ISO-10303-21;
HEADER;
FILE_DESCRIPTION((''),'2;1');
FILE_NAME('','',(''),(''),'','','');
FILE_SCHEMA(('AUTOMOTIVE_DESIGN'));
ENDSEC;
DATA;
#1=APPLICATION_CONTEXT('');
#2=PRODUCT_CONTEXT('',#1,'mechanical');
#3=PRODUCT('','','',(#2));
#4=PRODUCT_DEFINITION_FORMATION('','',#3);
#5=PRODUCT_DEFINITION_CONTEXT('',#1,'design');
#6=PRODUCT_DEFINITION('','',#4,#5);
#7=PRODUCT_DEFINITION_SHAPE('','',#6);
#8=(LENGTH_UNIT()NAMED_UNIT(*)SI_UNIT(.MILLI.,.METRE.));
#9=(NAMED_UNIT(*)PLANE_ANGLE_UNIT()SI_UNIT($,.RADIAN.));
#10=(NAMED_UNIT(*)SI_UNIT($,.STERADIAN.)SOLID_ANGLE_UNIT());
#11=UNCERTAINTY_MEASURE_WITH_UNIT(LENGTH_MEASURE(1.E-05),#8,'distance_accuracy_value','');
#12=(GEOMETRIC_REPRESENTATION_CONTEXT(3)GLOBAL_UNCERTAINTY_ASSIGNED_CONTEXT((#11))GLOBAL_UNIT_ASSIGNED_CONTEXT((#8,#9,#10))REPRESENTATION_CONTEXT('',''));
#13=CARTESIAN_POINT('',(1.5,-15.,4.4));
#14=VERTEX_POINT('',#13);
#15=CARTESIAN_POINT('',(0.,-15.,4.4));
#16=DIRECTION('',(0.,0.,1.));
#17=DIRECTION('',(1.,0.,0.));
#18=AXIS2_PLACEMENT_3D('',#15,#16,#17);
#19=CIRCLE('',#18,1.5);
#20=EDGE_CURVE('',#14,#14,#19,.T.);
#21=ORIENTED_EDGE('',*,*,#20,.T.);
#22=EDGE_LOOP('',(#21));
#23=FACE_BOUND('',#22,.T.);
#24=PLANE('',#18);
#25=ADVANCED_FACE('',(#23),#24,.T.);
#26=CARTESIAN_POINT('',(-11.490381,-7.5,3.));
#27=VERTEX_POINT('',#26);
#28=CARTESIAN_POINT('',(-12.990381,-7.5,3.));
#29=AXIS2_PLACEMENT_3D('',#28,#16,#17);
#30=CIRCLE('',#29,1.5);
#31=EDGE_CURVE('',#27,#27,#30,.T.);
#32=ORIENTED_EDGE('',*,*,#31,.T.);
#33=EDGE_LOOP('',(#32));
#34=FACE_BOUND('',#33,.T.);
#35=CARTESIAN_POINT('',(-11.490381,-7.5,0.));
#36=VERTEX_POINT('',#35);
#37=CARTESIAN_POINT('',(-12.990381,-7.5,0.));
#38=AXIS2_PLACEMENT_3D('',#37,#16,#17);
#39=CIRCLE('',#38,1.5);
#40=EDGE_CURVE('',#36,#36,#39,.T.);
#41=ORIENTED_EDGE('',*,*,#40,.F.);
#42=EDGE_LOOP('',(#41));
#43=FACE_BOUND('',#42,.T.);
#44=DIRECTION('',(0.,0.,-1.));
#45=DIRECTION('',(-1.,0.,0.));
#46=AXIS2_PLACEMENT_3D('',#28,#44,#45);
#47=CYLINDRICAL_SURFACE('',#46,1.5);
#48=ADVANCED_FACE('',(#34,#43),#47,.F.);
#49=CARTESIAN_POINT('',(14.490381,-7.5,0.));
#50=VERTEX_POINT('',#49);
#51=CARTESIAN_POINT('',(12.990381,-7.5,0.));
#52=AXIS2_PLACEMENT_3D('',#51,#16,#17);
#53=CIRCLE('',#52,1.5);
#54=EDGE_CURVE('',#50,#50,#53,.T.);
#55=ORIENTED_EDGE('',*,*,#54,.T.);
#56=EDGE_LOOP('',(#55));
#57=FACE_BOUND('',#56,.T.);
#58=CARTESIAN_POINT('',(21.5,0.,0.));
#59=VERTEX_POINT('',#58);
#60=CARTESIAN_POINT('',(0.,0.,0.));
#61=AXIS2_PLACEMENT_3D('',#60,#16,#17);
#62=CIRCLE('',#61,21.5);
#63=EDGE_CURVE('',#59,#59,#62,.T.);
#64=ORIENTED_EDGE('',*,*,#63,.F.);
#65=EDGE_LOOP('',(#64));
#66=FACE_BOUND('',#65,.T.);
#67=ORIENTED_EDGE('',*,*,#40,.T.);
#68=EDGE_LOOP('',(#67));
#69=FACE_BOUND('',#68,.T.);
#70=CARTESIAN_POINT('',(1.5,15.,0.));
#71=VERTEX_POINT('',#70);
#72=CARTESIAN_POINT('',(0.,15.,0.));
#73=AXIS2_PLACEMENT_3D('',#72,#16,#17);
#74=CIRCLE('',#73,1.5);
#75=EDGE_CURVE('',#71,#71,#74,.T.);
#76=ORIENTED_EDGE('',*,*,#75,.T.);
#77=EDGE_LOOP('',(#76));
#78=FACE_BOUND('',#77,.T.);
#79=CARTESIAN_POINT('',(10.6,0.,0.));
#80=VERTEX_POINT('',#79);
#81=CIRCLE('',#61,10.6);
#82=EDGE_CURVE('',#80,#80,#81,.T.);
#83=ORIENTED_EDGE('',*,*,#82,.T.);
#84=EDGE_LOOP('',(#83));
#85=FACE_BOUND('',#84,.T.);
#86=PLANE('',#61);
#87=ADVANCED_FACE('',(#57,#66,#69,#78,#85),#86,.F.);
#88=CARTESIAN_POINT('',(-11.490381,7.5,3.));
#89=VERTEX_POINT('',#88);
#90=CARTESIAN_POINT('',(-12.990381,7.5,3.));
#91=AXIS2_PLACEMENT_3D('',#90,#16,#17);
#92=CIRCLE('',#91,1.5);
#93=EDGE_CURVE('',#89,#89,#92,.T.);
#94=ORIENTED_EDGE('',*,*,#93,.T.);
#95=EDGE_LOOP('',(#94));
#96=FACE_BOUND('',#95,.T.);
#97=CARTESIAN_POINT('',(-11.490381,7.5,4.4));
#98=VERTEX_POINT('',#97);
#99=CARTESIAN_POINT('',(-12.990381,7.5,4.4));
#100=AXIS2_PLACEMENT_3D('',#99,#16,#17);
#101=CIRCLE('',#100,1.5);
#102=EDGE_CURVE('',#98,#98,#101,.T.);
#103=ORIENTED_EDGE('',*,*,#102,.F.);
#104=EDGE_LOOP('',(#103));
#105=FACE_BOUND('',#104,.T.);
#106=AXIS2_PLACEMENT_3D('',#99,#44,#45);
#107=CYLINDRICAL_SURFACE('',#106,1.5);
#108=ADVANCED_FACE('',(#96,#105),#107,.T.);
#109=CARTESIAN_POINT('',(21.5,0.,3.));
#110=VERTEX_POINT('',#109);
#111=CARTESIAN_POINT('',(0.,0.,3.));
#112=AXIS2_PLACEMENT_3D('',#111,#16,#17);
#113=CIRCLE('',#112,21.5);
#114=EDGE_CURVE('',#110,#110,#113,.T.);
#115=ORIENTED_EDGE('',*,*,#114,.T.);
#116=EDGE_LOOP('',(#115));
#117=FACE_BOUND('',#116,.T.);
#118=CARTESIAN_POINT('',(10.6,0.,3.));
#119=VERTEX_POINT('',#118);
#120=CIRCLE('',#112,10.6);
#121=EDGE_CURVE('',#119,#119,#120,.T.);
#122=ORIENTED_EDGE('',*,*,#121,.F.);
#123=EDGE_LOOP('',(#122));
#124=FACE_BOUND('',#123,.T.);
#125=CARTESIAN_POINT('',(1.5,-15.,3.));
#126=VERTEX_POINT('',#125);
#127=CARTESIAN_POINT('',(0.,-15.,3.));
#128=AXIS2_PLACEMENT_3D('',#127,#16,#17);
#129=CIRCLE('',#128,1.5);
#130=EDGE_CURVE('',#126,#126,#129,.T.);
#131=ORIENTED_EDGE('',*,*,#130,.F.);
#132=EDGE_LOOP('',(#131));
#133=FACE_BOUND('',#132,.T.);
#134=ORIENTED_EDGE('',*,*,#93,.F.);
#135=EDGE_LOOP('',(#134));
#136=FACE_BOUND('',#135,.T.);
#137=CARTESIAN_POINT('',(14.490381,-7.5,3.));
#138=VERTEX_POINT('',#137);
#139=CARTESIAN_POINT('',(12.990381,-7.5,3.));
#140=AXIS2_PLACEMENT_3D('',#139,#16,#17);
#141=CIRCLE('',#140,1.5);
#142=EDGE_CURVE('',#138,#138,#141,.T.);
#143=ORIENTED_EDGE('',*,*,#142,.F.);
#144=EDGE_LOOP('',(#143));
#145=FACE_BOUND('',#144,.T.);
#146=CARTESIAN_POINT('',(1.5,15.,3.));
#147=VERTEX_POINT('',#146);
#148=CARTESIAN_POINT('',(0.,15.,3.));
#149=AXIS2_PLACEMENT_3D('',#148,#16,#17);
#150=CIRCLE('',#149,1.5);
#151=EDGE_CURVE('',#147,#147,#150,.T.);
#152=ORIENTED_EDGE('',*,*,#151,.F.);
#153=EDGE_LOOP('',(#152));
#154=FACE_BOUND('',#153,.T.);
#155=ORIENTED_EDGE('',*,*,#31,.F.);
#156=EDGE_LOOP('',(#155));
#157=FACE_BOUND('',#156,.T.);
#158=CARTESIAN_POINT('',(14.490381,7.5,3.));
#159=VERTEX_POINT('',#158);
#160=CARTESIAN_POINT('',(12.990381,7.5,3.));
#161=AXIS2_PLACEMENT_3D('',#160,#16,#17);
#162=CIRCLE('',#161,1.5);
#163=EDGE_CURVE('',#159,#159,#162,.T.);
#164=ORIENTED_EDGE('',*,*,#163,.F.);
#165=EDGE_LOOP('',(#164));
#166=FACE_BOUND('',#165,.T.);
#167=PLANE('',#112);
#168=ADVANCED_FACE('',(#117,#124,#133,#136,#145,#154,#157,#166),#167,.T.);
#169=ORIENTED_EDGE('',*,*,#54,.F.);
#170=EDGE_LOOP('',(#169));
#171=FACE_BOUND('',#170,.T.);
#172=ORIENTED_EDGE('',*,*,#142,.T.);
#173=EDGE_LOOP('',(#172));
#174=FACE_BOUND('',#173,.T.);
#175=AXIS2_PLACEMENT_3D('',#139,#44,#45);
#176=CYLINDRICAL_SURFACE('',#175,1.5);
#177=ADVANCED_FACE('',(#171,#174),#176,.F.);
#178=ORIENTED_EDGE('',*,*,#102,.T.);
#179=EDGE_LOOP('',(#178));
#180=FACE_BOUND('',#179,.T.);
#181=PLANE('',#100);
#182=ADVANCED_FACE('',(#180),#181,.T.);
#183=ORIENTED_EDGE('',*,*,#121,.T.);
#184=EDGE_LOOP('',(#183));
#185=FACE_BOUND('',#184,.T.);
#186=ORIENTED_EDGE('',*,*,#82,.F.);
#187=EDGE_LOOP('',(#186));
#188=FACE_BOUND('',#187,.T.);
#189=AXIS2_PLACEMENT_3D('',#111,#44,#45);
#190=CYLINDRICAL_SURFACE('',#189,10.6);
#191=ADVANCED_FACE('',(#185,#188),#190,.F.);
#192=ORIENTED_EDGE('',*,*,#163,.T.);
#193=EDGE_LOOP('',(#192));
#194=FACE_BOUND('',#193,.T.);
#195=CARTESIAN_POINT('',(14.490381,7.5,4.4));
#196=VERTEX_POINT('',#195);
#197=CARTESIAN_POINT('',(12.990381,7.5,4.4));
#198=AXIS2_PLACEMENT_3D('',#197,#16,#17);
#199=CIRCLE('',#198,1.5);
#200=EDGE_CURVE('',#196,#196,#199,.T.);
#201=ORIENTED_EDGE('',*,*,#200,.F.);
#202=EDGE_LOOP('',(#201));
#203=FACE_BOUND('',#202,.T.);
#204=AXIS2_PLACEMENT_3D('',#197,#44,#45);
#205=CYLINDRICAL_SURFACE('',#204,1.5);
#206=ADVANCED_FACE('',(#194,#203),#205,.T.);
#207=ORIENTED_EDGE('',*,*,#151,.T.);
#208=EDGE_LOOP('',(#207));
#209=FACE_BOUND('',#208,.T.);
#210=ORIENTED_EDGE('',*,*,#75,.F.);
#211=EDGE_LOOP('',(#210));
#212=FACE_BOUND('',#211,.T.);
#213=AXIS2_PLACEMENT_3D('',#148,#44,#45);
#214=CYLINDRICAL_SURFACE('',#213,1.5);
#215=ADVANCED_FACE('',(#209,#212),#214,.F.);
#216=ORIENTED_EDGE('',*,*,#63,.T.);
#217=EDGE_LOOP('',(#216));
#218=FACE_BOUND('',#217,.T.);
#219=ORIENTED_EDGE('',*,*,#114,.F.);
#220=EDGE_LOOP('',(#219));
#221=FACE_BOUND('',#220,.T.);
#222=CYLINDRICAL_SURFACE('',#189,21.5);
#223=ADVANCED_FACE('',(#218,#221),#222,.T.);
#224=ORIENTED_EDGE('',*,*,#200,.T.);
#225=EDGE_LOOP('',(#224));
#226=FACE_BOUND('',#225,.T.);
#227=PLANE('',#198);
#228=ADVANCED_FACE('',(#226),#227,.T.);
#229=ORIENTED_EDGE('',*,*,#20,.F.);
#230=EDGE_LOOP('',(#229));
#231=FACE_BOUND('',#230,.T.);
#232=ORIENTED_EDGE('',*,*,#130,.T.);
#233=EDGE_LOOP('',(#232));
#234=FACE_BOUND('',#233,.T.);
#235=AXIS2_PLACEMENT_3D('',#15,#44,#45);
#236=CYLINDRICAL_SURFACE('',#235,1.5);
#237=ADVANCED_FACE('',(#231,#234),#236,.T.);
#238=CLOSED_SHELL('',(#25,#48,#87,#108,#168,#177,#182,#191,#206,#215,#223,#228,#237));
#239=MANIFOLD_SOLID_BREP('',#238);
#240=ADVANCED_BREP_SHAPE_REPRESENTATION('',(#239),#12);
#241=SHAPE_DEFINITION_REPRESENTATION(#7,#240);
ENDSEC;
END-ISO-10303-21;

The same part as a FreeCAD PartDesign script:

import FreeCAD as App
import Part
import Sketcher

doc = App.newDocument("Part")
body = doc.addObject("PartDesign::Body", "Body")

sketch1 = body.newObject("Sketcher::SketchObject", "Sketch")
sketch1.AttachmentSupport = (doc.getObject("XY_Plane"), [""])
sketch1.MapMode = "FlatFace"
sketch1.addGeometry([
    Part.Circle(App.Vector(0, 0, 0), App.Vector(0, 0, 1), 21.5),
    Part.Circle(App.Vector(-12.990381, -7.5, 0), App.Vector(0, 0, 1), 1.5),
    Part.Circle(App.Vector(0, 0, 0), App.Vector(0, 0, 1), 10.6),
    Part.Circle(App.Vector(12.990381, -7.5, 0), App.Vector(0, 0, 1), 1.5),
    Part.Circle(App.Vector(0, 15, 0), App.Vector(0, 0, 1), 1.5),
], False)
sketch1.addConstraint([
    Sketcher.Constraint("Coincident", 0, 3, -1, 1),
    Sketcher.Constraint("Coincident", 2, 3, -1, 1),
    Sketcher.Constraint("Equal", 1, 3),
    Sketcher.Constraint("Equal", 3, 4),
    Sketcher.Constraint("Symmetric", 1, 3, 3, 3, -2),
    Sketcher.Constraint("PointOnObject", 4, 3, -2),
    Sketcher.Constraint("Diameter", 0, 43.0),
    Sketcher.Constraint("Diameter", 1, 3.0),
    Sketcher.Constraint("Diameter", 2, 21.2),
    Sketcher.Constraint("DistanceY", -1, 1, 4, 3, 15.0),
    Sketcher.Constraint("DistanceY", 1, 3, -1, 1, 7.5),
    Sketcher.Constraint("DistanceX", 1, 3, -1, 1, 12.990381),
])
pad1 = body.newObject("PartDesign::Pad", "Pad")
pad1.Profile = sketch1
pad1.Length = 3

sketch2 = body.newObject("Sketcher::SketchObject", "Sketch001")
sketch2.AttachmentSupport = (doc.getObject("XY_Plane"), [""])
sketch2.MapMode = "FlatFace"
sketch2.AttachmentOffset = App.Placement(App.Vector(0, 0, 3), App.Rotation())
sketch2.addGeometry([
    Part.Circle(App.Vector(12.990381, 7.5, 0), App.Vector(0, 0, 1), 1.5),
    Part.Circle(App.Vector(-12.990381, 7.5, 0), App.Vector(0, 0, 1), 1.5),
    Part.Circle(App.Vector(0, -15, 0), App.Vector(0, 0, 1), 1.5),
], False)
sketch2.addConstraint([
    Sketcher.Constraint("Equal", 0, 1),
    Sketcher.Constraint("Equal", 1, 2),
    Sketcher.Constraint("Symmetric", 0, 3, 1, 3, -2),
    Sketcher.Constraint("PointOnObject", 2, 3, -2),
    Sketcher.Constraint("Diameter", 0, 3.0),
    Sketcher.Constraint("DistanceY", 2, 3, -1, 1, 15.0),
    Sketcher.Constraint("DistanceY", -1, 1, 0, 3, 7.5),
    Sketcher.Constraint("DistanceX", -1, 1, 0, 3, 12.990381),
])
pad2 = body.newObject("PartDesign::Pad", "Pad001")
pad2.Profile = sketch2
pad2.Length = 1.4

doc.recompute()
